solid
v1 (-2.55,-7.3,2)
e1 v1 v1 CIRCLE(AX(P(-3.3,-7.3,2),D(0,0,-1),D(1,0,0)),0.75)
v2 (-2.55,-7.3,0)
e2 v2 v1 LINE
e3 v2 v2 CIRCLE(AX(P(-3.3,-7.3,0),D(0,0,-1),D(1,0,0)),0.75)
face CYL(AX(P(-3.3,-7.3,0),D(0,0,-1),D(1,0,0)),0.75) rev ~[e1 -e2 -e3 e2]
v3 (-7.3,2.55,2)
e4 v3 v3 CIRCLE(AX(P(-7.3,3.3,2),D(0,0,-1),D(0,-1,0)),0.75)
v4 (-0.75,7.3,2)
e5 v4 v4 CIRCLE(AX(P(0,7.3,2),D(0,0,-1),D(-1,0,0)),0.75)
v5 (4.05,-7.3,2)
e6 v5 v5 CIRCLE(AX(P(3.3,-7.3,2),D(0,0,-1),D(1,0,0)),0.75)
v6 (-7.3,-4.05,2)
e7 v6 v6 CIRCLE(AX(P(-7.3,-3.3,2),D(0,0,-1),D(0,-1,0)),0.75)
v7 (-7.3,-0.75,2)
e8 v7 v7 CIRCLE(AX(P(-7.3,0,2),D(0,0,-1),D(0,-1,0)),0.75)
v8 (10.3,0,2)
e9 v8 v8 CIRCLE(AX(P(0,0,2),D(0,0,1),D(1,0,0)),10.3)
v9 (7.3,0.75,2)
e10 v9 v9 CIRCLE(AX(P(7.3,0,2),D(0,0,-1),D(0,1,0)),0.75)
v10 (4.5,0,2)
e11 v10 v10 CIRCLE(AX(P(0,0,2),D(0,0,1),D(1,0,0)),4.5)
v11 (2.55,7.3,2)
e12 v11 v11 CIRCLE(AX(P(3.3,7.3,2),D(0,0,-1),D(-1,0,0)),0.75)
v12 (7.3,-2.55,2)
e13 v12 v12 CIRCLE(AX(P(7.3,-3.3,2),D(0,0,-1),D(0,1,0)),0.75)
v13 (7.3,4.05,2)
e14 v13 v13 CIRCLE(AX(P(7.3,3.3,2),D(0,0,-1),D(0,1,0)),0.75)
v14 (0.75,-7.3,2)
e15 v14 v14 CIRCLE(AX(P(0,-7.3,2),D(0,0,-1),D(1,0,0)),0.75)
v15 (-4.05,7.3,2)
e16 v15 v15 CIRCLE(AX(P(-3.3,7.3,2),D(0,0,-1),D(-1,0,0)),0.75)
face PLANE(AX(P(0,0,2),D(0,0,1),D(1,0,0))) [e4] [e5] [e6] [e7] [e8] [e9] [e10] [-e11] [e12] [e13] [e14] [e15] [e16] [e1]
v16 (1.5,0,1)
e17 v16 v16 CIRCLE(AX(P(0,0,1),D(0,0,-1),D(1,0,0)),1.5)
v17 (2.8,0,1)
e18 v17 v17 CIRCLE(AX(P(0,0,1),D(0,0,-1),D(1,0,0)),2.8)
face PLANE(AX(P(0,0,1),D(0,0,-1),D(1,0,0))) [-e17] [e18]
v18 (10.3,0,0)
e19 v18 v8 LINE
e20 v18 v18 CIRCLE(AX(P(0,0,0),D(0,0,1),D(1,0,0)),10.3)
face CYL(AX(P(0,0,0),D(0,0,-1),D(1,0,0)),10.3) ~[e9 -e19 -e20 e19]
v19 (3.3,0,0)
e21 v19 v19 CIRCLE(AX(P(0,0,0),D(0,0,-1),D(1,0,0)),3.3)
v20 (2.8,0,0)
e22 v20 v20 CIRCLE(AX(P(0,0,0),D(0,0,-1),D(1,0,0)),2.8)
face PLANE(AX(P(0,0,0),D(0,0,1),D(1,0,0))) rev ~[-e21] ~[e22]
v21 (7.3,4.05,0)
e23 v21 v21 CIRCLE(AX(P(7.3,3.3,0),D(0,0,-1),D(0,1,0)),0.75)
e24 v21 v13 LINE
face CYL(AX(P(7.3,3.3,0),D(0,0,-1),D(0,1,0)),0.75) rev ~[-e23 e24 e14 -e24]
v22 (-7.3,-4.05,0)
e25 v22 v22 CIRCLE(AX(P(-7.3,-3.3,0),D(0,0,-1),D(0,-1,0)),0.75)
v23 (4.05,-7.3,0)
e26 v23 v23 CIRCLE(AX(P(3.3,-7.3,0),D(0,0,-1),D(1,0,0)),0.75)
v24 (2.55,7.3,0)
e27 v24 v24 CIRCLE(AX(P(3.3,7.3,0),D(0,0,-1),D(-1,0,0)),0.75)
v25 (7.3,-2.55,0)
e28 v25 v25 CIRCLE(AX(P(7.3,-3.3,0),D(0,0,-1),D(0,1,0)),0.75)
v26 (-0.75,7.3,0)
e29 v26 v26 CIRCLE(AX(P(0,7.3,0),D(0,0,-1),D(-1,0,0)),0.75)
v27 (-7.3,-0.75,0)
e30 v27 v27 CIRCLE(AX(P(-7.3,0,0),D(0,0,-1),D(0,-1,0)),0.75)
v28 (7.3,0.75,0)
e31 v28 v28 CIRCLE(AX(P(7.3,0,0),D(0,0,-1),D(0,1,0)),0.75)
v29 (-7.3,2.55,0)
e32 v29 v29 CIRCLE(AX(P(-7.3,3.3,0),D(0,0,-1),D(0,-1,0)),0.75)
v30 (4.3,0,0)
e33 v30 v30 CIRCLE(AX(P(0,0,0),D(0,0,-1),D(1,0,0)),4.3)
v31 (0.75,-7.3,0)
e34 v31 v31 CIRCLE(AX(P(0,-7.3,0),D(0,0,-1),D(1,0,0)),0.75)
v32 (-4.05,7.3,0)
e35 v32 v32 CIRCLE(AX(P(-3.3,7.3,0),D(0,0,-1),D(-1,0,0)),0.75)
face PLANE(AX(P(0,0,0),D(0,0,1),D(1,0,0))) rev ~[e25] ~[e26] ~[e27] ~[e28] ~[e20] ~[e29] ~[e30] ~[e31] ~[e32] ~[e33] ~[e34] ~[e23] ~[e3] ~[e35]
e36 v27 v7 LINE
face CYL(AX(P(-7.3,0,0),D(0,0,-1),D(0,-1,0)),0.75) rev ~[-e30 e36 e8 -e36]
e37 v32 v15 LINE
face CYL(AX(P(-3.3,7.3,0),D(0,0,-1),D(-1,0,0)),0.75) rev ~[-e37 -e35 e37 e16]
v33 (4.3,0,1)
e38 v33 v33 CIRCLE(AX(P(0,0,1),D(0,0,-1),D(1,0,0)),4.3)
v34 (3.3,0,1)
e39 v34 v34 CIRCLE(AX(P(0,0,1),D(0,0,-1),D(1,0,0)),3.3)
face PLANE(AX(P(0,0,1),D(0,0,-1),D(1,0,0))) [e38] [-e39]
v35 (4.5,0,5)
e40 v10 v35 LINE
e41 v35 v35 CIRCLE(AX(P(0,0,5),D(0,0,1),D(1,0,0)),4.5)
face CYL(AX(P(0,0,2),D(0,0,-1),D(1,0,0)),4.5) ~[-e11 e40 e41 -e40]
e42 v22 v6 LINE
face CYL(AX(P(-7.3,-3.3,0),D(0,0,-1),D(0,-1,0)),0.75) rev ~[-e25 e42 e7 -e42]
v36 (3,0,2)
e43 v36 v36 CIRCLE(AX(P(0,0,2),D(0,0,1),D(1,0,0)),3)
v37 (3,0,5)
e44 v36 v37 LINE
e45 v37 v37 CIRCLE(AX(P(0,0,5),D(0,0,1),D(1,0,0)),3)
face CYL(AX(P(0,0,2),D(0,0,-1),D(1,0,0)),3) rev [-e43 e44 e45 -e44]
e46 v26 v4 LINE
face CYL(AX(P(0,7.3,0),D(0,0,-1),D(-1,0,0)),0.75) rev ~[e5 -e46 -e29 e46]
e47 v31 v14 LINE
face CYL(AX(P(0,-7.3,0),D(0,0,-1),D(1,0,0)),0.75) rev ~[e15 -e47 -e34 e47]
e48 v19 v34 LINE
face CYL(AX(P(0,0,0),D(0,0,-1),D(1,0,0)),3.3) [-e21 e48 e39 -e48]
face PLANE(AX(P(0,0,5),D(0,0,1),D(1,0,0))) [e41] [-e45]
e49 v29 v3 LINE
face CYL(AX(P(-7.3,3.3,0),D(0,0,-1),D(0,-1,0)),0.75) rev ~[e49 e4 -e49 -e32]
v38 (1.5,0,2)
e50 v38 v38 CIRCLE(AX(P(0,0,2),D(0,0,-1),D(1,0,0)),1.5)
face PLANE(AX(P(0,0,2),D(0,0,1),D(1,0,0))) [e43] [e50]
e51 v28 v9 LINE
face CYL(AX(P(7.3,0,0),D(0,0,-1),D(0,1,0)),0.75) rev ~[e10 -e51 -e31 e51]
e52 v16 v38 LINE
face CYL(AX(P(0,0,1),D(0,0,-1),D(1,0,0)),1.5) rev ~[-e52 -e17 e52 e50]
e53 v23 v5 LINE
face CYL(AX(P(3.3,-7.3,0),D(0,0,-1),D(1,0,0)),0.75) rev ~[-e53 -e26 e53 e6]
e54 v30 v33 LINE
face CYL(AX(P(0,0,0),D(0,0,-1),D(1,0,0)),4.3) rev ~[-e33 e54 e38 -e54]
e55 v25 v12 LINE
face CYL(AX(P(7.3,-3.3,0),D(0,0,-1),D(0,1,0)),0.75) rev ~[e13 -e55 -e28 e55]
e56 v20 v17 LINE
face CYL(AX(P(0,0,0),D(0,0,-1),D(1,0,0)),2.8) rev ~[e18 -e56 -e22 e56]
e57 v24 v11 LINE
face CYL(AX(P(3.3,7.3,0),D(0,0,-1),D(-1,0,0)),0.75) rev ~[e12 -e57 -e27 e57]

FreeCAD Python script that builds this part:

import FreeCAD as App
import Part
import Sketcher
Q = App.Units.Quantity

doc = App.newDocument("Part")
body = doc.addObject("PartDesign::Body", "Body")

sketch1 = doc.addObject("Sketcher::SketchObject", "Sketch")
body.addObject(sketch1)
sketch1.AttachmentSupport = (doc.XY_Plane, [""])
sketch1.MapMode = "FlatFace"
sketch1.addGeometry(Part.Circle(App.Vector(0, 0, 0), App.Vector(0, 0, 1), 10.3), False)
sketch1.addConstraint([
    Sketcher.Constraint("Coincident", 0, 3, -1, 1),
    Sketcher.Constraint("Diameter", 0, Q("20.6 mm")),
])
pad1 = doc.addObject("PartDesign::Pad", "Pad")
body.addObject(pad1)
pad1.Profile = sketch1
pad1.Length = 2

sketch2 = doc.addObject("Sketcher::SketchObject", "Sketch001")
body.addObject(sketch2)
sketch2.AttachmentSupport = (doc.XY_Plane, [""])
sketch2.MapMode = "FlatFace"
sketch2.addGeometry([
    Part.Circle(App.Vector(0, 0, 0), App.Vector(0, 0, 1), 4.3),
    Part.Circle(App.Vector(0, 0, 0), App.Vector(0, 0, 1), 3.3),
], False)
sketch2.addConstraint([
    Sketcher.Constraint("Coincident", 0, 3, -1, 1),
    Sketcher.Constraint("Coincident", 1, 3, -1, 1),
    Sketcher.Constraint("Diameter", 0, Q("8.6 mm")),
    Sketcher.Constraint("Diameter", 1, Q("6.6 mm")),
])
pocket1 = doc.addObject("PartDesign::Pocket", "Pocket")
body.addObject(pocket1)
pocket1.Profile = sketch2
pocket1.Length = 1
pocket1.Reversed = True

sketch3 = doc.addObject("Sketcher::SketchObject", "Sketch002")
body.addObject(sketch3)
sketch3.AttachmentSupport = (doc.XY_Plane, [""])
sketch3.MapMode = "FlatFace"
sketch3.addGeometry(Part.Circle(App.Vector(0, 0, 0), App.Vector(0, 0, 1), 2.8), False)
sketch3.addConstraint([
    Sketcher.Constraint("Coincident", 0, 3, -1, 1),
    Sketcher.Constraint("Diameter", 0, Q("5.6 mm")),
])
pocket2 = doc.addObject("PartDesign::Pocket", "Pocket001")
body.addObject(pocket2)
pocket2.Profile = sketch3
pocket2.Length = 1
pocket2.Reversed = True

sketch4 = doc.addObject("Sketcher::SketchObject", "Sketch003")
body.addObject(sketch4)
sketch4.AttachmentSupport = (doc.XY_Plane, [""])
sketch4.MapMode = "FlatFace"
sketch4.AttachmentOffset = App.Placement(App.Vector(0, 0, 1), App.Rotation())
sketch4.addGeometry(Part.Circle(App.Vector(0, 0, 0), App.Vector(0, 0, 1), 1.5), False)
sketch4.addConstraint([
    Sketcher.Constraint("Coincident", 0, 3, -1, 1),
    Sketcher.Constraint("Diameter", 0, Q("3 mm")),
])
pocket3 = doc.addObject("PartDesign::Pocket", "Pocket002")
body.addObject(pocket3)
pocket3.Profile = sketch4
pocket3.Type = "ThroughAll"
pocket3.Reversed = True

sketch5 = doc.addObject("Sketcher::SketchObject", "Sketch004")
body.addObject(sketch5)
sketch5.AttachmentSupport = (doc.XY_Plane, [""])
sketch5.MapMode = "FlatFace"
sketch5.AttachmentOffset = App.Placement(App.Vector(0, 0, 2), App.Rotation())
sketch5.addGeometry([
    Part.Circle(App.Vector(0, 0, 0), App.Vector(0, 0, 1), 4.5),
    Part.Circle(App.Vector(0, 0, 0), App.Vector(0, 0, 1), 3),
], False)
sketch5.addConstraint([
    Sketcher.Constraint("Coincident", 0, 3, -1, 1),
    Sketcher.Constraint("Coincident", 1, 3, -1, 1),
    Sketcher.Constraint("Diameter", 0, Q("9 mm")),
    Sketcher.Constraint("Diameter", 1, Q("6 mm")),
])
pad2 = doc.addObject("PartDesign::Pad", "Pad001")
body.addObject(pad2)
pad2.Profile = sketch5
pad2.Length = 3

sketch6 = doc.addObject("Sketcher::SketchObject", "Sketch005")
body.addObject(sketch6)
sketch6.AttachmentSupport = (doc.XY_Plane, [""])
sketch6.MapMode = "FlatFace"
sketch6.addGeometry([
    Part.Circle(App.Vector(-3.3, -7.3, 0), App.Vector(0, 0, 1), 0.75),
    Part.Circle(App.Vector(0, -7.3, 0), App.Vector(0, 0, 1), 0.75),
    Part.Circle(App.Vector(3.3, -7.3, 0), App.Vector(0, 0, 1), 0.75),
], False)
sketch6.addConstraint([
    Sketcher.Constraint("Equal", 0, 1),
    Sketcher.Constraint("Equal", 1, 2),
    Sketcher.Constraint("Symmetric", 0, 3, 2, 3, -2),
    Sketcher.Constraint("PointOnObject", 1, 3, -2),
    Sketcher.Constraint("Horizontal", 0, 3, 1, 3),
    Sketcher.Constraint("Diameter", 0, Q("1.5 mm")),
    Sketcher.Constraint("DistanceX", 0, 3, -1, 1, Q("3.3 mm")),
    Sketcher.Constraint("DistanceY", 0, 3, -1, 1, Q("7.3 mm")),
])
pocket4 = doc.addObject("PartDesign::Pocket", "Pocket003")
body.addObject(pocket4)
pocket4.Profile = sketch6
pocket4.Length = 5
pocket4.Reversed = True
doc.recompute()

polarpattern = doc.addObject("PartDesign::PolarPattern", "PolarPattern")
body.addObject(polarpattern)
polarpattern.Originals = [pocket4]
polarpattern.Axis = (doc.Z_Axis, [""])
polarpattern.Angle = 360
polarpattern.Occurrences = 4
body.Tip = polarpattern

doc.recompute()
